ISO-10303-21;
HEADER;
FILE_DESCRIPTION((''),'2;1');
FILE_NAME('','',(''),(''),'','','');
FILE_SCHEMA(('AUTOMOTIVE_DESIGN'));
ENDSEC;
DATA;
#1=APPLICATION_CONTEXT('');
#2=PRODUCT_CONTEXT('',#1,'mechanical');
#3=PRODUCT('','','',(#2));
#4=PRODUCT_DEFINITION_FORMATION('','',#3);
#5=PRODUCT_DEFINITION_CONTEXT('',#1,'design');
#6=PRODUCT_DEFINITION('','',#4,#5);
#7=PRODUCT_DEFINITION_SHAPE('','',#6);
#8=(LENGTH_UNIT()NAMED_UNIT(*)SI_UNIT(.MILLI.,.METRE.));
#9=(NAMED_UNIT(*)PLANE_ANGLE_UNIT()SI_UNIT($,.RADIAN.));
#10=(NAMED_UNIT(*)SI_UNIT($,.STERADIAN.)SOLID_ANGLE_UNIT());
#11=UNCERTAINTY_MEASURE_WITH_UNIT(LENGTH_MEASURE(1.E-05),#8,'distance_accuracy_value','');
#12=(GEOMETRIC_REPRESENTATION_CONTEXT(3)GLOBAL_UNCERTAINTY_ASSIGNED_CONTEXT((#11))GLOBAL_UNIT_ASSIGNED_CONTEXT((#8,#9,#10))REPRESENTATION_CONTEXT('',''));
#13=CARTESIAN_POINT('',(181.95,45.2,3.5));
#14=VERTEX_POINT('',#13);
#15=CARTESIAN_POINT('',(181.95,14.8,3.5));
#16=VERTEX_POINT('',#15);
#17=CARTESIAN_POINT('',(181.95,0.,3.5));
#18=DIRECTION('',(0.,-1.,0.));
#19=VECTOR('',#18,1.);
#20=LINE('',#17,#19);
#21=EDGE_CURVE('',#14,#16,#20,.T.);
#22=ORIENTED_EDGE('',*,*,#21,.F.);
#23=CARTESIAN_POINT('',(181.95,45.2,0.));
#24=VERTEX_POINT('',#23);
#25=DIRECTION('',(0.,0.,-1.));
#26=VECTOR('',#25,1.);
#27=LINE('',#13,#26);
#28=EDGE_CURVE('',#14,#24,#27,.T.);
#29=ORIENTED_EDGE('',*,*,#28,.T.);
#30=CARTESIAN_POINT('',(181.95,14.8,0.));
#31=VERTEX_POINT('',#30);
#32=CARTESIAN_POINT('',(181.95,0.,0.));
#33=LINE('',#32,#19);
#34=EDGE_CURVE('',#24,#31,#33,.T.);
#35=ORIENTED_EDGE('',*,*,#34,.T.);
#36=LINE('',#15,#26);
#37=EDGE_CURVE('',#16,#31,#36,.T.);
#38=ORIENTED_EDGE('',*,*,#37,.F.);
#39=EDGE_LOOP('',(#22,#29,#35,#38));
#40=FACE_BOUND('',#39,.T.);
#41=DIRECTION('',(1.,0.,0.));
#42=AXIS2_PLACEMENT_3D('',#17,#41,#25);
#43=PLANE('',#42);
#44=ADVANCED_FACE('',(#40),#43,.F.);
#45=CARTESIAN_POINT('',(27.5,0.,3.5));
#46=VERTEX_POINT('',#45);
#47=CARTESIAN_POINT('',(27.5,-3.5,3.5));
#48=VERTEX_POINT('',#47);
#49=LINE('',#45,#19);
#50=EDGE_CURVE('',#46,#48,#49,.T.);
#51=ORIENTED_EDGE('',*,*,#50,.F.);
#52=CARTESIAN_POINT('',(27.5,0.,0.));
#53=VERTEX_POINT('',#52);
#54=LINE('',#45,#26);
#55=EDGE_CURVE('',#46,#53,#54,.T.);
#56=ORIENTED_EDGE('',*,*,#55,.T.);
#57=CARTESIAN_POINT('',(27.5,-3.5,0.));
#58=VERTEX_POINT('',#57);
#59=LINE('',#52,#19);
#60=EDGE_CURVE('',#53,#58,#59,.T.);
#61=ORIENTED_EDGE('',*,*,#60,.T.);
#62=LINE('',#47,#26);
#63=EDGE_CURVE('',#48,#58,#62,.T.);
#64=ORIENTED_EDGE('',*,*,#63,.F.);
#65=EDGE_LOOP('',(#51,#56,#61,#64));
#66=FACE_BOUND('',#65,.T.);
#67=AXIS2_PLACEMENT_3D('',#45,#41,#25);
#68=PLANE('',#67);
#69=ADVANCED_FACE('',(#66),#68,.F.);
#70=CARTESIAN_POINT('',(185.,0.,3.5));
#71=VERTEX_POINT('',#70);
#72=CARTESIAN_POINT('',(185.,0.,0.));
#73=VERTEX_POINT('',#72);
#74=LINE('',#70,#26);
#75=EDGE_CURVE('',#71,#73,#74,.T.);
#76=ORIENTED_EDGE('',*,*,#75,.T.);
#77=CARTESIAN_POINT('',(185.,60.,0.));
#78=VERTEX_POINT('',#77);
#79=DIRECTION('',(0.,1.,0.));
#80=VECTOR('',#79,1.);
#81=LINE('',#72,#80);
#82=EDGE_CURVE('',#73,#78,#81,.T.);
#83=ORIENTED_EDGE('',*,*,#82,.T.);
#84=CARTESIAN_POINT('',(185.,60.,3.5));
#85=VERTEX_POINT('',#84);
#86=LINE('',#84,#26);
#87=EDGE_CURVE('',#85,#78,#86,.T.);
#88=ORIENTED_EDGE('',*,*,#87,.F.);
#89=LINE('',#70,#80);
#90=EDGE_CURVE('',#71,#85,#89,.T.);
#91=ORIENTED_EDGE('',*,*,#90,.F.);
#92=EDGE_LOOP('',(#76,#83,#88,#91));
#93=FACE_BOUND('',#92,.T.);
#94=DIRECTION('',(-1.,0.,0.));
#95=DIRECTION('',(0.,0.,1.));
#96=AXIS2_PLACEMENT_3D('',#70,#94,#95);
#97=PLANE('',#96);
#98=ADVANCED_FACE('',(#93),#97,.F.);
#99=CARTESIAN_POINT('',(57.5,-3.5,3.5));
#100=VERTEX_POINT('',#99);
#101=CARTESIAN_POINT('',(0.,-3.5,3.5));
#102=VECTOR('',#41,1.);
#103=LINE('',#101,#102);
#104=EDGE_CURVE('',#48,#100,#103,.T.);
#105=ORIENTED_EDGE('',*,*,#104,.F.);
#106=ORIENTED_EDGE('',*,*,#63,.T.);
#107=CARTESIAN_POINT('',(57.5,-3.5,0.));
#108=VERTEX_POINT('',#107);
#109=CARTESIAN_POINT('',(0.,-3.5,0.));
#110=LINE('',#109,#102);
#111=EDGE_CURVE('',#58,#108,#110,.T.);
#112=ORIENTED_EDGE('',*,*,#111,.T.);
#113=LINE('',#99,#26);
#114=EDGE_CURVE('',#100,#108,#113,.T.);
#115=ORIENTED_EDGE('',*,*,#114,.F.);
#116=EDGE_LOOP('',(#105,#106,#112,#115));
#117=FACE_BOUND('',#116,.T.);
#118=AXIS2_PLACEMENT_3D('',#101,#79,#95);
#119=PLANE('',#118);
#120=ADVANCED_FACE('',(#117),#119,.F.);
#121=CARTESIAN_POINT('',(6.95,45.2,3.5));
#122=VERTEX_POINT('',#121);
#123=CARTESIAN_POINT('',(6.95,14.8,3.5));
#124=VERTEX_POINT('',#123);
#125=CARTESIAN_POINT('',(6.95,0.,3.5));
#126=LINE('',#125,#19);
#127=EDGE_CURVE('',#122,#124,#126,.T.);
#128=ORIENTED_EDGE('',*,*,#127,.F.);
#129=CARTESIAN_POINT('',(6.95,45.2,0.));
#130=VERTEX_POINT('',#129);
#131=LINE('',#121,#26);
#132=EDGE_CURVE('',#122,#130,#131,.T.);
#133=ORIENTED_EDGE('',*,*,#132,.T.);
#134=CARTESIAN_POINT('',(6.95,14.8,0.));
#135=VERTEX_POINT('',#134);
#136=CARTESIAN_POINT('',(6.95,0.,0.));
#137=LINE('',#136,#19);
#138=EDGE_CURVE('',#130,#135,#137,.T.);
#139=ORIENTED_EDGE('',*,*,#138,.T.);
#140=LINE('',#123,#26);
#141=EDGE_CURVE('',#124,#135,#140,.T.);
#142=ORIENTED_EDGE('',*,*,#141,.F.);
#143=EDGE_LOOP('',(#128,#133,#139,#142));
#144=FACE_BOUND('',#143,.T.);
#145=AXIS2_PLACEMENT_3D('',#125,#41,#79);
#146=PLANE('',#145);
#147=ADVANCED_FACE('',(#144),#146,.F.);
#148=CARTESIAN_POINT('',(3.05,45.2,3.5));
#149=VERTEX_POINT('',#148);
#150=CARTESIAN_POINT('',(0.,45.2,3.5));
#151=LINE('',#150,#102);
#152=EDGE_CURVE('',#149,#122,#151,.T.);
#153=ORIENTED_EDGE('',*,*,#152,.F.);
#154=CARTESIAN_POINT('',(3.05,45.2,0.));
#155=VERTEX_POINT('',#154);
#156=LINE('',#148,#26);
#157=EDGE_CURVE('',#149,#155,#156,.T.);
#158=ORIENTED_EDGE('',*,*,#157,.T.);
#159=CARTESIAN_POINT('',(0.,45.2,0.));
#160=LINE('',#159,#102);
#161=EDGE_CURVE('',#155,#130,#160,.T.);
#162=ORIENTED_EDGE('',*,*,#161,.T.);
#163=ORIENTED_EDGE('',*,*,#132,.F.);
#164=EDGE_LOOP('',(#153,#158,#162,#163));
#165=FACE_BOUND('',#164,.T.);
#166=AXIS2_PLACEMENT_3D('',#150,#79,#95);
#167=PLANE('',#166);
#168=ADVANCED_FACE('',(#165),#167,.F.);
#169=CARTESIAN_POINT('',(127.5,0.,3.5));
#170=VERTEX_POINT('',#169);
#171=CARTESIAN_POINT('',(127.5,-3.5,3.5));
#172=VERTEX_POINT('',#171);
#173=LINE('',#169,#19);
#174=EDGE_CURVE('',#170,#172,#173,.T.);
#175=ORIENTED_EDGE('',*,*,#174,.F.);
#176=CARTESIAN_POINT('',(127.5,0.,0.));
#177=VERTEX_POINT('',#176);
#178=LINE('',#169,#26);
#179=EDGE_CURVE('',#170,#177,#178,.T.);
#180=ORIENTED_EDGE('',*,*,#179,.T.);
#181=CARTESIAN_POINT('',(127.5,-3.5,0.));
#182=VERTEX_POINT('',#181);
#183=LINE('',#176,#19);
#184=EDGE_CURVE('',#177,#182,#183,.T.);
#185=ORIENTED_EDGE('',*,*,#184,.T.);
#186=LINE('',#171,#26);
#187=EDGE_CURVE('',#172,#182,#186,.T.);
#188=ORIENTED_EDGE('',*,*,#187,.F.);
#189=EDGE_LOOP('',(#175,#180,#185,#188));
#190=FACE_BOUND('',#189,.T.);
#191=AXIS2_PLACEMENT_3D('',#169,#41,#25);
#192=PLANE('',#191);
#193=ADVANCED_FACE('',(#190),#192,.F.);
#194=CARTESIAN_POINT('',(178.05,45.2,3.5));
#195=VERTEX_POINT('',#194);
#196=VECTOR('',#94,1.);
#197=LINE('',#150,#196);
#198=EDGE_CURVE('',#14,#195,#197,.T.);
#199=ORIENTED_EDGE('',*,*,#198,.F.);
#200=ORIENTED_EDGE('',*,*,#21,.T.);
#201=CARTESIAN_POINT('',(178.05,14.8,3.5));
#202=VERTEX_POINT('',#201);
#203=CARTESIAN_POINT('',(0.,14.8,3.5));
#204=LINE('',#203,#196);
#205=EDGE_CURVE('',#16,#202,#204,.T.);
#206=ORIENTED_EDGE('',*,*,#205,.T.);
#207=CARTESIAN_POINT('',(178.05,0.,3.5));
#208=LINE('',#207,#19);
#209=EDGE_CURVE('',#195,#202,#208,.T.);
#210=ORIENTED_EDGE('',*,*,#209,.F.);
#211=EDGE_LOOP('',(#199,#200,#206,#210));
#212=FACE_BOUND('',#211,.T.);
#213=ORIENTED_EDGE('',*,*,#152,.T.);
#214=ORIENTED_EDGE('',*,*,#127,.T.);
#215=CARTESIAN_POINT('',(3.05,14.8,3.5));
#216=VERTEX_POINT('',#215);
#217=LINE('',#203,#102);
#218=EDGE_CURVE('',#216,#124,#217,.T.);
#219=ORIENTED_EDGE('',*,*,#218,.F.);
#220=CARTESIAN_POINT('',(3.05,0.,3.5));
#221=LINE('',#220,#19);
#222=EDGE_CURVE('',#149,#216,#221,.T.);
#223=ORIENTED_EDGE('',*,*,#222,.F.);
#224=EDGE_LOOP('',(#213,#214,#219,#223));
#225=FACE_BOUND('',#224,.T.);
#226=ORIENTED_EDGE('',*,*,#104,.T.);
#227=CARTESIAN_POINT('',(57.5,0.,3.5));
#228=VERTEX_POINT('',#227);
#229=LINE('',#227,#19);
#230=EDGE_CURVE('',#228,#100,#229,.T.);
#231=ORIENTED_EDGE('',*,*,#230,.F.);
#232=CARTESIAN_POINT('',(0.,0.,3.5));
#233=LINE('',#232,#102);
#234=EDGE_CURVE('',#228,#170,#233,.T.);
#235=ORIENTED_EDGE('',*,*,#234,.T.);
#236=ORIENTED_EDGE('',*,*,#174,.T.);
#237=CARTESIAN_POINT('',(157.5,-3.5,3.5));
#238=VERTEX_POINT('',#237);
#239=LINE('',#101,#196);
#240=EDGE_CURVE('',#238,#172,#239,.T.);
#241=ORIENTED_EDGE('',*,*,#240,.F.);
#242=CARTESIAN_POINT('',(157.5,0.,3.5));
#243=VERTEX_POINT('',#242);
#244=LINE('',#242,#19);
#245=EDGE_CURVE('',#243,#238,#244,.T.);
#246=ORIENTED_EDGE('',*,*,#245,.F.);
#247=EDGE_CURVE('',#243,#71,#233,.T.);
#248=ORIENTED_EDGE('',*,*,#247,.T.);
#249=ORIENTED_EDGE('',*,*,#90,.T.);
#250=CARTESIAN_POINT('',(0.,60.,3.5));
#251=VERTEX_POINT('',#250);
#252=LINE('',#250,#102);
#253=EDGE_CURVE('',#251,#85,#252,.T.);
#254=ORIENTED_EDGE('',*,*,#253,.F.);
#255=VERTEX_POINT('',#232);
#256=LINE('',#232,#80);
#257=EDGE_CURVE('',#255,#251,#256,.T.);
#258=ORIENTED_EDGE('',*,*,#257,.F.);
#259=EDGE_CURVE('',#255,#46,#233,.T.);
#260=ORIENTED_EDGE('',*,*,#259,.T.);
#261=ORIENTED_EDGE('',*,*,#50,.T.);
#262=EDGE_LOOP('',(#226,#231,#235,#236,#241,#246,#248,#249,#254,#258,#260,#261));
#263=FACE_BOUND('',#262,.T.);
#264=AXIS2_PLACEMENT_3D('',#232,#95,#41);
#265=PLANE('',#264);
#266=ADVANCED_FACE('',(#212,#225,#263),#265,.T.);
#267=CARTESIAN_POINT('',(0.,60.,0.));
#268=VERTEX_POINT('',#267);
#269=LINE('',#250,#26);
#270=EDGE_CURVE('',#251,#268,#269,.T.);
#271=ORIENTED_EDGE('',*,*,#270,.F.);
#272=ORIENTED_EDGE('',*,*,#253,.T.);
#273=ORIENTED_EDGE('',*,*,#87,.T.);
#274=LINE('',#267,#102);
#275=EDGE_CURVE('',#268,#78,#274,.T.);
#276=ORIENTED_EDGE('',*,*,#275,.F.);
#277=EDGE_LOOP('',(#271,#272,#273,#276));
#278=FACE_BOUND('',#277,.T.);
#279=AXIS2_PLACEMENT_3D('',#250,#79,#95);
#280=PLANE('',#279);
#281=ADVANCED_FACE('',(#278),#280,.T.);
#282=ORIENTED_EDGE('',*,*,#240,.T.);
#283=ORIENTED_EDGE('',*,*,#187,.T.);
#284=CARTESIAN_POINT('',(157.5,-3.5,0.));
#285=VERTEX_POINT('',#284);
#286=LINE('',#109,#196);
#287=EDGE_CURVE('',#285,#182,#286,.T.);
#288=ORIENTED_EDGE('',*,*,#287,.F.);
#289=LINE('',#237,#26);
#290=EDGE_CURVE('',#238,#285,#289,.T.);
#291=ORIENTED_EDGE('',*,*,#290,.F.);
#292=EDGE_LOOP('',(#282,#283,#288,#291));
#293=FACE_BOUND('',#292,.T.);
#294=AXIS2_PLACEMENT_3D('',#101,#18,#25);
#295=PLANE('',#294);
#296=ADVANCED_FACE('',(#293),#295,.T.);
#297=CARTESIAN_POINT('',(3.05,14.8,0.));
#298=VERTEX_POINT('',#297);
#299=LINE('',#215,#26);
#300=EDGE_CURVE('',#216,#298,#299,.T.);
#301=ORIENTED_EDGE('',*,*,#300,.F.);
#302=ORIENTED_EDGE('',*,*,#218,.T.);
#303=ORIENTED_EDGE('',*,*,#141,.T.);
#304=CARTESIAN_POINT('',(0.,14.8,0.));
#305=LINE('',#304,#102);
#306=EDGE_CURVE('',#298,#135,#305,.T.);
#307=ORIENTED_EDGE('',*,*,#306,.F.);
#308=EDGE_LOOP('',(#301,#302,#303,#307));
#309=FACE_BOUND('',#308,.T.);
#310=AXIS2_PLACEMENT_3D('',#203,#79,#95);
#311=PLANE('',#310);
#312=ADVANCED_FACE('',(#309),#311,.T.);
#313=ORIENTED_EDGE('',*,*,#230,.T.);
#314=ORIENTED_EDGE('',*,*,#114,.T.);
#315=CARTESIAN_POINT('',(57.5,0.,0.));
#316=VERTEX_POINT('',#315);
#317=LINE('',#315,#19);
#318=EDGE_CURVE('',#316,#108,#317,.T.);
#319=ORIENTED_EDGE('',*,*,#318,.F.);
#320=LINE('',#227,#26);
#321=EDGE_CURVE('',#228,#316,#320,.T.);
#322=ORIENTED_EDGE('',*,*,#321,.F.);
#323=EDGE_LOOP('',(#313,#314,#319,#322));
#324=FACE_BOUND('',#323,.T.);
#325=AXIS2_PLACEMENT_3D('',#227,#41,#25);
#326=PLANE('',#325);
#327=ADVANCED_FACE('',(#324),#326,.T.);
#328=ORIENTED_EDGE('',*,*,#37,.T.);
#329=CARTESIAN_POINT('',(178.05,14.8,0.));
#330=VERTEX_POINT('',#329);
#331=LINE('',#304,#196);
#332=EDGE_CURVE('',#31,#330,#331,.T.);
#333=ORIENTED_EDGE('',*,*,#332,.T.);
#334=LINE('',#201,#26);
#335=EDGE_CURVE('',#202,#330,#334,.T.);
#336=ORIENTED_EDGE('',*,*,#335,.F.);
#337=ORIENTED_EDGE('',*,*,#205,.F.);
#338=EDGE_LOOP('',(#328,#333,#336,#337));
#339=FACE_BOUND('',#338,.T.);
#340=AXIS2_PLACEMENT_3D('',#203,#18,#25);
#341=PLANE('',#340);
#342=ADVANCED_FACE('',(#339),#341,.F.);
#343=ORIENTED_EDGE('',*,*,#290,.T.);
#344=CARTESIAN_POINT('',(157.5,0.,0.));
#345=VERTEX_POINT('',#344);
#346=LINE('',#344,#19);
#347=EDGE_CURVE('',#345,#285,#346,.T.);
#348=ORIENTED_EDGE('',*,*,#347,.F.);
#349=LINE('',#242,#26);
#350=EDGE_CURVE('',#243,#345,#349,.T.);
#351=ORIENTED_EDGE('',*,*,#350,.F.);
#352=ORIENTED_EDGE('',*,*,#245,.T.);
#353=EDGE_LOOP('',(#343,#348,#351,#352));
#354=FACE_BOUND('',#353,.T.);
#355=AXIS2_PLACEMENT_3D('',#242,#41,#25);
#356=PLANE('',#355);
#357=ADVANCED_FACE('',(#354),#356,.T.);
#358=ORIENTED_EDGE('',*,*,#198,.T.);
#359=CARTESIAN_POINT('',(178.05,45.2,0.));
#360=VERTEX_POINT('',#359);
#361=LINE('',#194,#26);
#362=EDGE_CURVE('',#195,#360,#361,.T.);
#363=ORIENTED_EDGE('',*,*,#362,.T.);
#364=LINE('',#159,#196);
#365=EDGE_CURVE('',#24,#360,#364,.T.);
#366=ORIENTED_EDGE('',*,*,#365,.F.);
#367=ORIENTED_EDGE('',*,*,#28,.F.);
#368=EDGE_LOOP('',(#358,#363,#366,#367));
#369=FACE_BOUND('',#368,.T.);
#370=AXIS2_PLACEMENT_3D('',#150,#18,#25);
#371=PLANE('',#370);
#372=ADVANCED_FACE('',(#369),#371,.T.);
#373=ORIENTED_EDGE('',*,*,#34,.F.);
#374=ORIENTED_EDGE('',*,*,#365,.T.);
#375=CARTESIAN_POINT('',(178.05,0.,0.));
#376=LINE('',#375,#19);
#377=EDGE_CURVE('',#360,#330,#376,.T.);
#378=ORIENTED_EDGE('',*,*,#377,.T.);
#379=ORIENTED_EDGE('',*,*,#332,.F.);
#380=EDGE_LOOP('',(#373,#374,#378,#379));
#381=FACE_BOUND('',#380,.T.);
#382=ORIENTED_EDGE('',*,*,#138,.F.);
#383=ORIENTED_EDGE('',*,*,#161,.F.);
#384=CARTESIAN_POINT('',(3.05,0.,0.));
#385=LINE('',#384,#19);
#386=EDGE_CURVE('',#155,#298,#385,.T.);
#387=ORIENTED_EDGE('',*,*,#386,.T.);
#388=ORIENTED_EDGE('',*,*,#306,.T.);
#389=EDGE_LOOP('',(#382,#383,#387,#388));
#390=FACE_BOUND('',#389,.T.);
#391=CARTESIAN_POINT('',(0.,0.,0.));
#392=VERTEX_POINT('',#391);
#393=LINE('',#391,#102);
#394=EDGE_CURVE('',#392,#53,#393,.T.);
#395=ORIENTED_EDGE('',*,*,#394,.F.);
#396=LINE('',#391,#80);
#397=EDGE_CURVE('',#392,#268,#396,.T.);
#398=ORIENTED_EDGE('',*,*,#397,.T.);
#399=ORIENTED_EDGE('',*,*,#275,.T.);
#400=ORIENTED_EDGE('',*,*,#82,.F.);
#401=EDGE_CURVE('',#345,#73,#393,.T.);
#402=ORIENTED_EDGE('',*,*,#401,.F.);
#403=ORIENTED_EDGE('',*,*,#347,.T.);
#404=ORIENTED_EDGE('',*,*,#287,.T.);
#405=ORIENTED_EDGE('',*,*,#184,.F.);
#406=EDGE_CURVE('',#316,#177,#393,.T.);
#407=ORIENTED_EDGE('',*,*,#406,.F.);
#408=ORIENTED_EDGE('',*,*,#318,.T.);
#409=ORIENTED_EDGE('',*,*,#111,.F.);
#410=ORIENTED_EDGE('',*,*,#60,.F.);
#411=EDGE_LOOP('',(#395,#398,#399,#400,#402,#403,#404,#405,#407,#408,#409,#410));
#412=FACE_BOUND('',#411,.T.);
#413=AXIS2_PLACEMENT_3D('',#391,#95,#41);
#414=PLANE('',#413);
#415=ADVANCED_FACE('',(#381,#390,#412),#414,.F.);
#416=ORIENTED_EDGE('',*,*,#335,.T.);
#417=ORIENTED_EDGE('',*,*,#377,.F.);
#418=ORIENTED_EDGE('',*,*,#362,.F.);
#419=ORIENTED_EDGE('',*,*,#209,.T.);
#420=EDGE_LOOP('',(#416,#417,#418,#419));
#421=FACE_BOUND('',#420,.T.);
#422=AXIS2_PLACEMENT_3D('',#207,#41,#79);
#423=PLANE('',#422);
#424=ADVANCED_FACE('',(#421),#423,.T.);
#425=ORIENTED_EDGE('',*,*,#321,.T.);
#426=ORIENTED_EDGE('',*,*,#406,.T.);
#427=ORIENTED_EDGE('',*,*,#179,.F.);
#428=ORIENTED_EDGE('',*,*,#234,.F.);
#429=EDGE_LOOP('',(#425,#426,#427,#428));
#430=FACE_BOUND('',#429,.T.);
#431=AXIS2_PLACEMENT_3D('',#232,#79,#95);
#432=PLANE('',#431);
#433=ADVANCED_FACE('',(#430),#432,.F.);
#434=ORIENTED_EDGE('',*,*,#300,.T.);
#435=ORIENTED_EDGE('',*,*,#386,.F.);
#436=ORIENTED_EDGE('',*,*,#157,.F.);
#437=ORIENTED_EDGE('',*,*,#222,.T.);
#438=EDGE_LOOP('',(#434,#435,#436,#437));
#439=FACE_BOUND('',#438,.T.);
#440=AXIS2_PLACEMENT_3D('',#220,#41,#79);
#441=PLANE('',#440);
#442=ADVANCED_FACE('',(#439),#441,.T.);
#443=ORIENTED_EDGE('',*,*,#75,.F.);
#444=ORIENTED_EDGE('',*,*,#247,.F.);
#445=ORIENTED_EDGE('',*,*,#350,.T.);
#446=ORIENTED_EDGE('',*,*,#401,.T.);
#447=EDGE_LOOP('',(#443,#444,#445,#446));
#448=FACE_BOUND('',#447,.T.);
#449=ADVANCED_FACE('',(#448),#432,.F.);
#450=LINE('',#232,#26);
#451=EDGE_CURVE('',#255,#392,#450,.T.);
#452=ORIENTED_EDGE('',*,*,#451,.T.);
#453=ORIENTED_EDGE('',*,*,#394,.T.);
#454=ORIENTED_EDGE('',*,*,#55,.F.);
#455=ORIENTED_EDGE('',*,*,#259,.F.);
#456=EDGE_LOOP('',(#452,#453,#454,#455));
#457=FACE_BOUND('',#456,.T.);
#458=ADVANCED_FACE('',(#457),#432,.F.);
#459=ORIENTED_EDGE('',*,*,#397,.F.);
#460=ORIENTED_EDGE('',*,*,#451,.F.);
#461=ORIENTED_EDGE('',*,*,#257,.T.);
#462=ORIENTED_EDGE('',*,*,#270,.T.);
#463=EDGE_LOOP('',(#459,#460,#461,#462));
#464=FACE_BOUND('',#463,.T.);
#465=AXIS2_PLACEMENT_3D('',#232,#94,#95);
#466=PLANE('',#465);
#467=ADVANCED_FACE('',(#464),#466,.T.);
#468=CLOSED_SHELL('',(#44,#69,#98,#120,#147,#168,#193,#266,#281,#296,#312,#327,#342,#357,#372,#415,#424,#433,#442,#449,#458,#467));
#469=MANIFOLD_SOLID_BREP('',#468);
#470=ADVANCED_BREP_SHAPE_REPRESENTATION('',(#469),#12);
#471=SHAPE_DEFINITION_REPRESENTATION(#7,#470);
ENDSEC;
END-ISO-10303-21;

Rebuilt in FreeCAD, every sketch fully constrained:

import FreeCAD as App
import Part
import Sketcher

doc = App.newDocument("Part")
body = doc.addObject("PartDesign::Body", "Body")

# Sketch on XY plane
sketch1 = body.newObject("Sketcher::SketchObject", "Sketch")
sketch1.AttachmentSupport = (doc.getObject("XY_Plane"), [""])
sketch1.MapMode = "FlatFace"
sketch1.addGeometry([
    Part.LineSegment(App.Vector(0, 60, 0), App.Vector(0, 0, 0)),  # 0
    Part.LineSegment(App.Vector(0, 0, 0), App.Vector(27.5, 0, 0)),  # 1
    Part.LineSegment(App.Vector(27.5, 0, 0), App.Vector(27.5, -3.5, 0)),  # 2
    Part.LineSegment(App.Vector(27.5, -3.5, 0), App.Vector(57.5, -3.5, 0)),  # 3
    Part.LineSegment(App.Vector(57.5, -3.5, 0), App.Vector(57.5, 0, 0)),  # 4
    Part.LineSegment(App.Vector(57.5, 0, 0), App.Vector(127.5, 0, 0)),  # 5
    Part.LineSegment(App.Vector(127.5, 0, 0), App.Vector(127.5, -3.5, 0)),  # 6
    Part.LineSegment(App.Vector(127.5, -3.5, 0), App.Vector(157.5, -3.5, 0)),  # 7
    Part.LineSegment(App.Vector(157.5, -3.5, 0), App.Vector(157.5, 0, 0)),  # 8
    Part.LineSegment(App.Vector(157.5, 0, 0), App.Vector(185, 0, 0)),  # 9
    Part.LineSegment(App.Vector(185, 0, 0), App.Vector(185, 60, 0)),  # 10
    Part.LineSegment(App.Vector(185, 60, 0), App.Vector(0, 60, 0)),  # 11
    Part.LineSegment(App.Vector(7, 14.8, 0), App.Vector(3, 14.8, 0)),  # 12
    Part.LineSegment(App.Vector(3, 14.8, 0), App.Vector(3, 45.2, 0)),  # 13
    Part.LineSegment(App.Vector(3, 45.2, 0), App.Vector(7, 45.2, 0)),  # 14
    Part.LineSegment(App.Vector(7, 45.2, 0), App.Vector(7, 14.8, 0)),  # 15
    Part.LineSegment(App.Vector(181.9, 14.8, 0), App.Vector(178.1, 14.8, 0)),  # 16
    Part.LineSegment(App.Vector(178.1, 14.8, 0), App.Vector(178.1, 45.2, 0)),  # 17
    Part.LineSegment(App.Vector(178.1, 45.2, 0), App.Vector(181.9, 45.2, 0)),  # 18
    Part.LineSegment(App.Vector(181.9, 45.2, 0), App.Vector(181.9, 14.8, 0)),  # 19
], False)
sketch1.addConstraint([
    Sketcher.Constraint("Coincident", 0, 2, 1, 1),
    Sketcher.Constraint("Coincident", 1, 2, 2, 1),
    Sketcher.Constraint("Coincident", 2, 2, 3, 1),
    Sketcher.Constraint("Coincident", 3, 2, 4, 1),
    Sketcher.Constraint("Coincident", 4, 2, 5, 1),
    Sketcher.Constraint("Coincident", 5, 2, 6, 1),
    Sketcher.Constraint("Coincident", 6, 2, 7, 1),
    Sketcher.Constraint("Coincident", 7, 2, 8, 1),
    Sketcher.Constraint("Coincident", 8, 2, 9, 1),
    Sketcher.Constraint("Coincident", 9, 2, 10, 1),
    Sketcher.Constraint("Coincident", 10, 2, 11, 1),
    Sketcher.Constraint("Coincident", 11, 2, 0, 1),
    Sketcher.Constraint("Coincident", 12, 2, 13, 1),
    Sketcher.Constraint("Coincident", 13, 2, 14, 1),
    Sketcher.Constraint("Coincident", 14, 2, 15, 1),
    Sketcher.Constraint("Coincident", 15, 2, 12, 1),
    Sketcher.Constraint("Coincident", 16, 2, 17, 1),
    Sketcher.Constraint("Coincident", 17, 2, 18, 1),
    Sketcher.Constraint("Coincident", 18, 2, 19, 1),
    Sketcher.Constraint("Coincident", 19, 2, 16, 1),
    Sketcher.Constraint("Vertical", 0),
    Sketcher.Constraint("Horizontal", 1),
    Sketcher.Constraint("Vertical", 2),
    Sketcher.Constraint("Horizontal", 3),
    Sketcher.Constraint("Vertical", 4),
    Sketcher.Constraint("Horizontal", 5),
    Sketcher.Constraint("Vertical", 6),
    Sketcher.Constraint("Horizontal", 7),
    Sketcher.Constraint("Vertical", 8),
    Sketcher.Constraint("Horizontal", 9),
    Sketcher.Constraint("Vertical", 10),
    Sketcher.Constraint("Horizontal", 11),
    Sketcher.Constraint("Horizontal", 12),
    Sketcher.Constraint("Vertical", 13),
    Sketcher.Constraint("Horizontal", 14),
    Sketcher.Constraint("Vertical", 15),
    Sketcher.Constraint("Horizontal", 16),
    Sketcher.Constraint("Vertical", 17),
    Sketcher.Constraint("Horizontal", 18),
    Sketcher.Constraint("Vertical", 19),
    Sketcher.Constraint("Coincident", 0, 2, -1, 1),
    Sketcher.Constraint("PointOnObject", 4, 2, -1),
    Sketcher.Constraint("PointOnObject", 8, 2, -1),
    Sketcher.Constraint("Horizontal", 3, 2, 6, 2),
    Sketcher.Constraint("Horizontal", 15, 2, 16, 2),
    Sketcher.Constraint("Horizontal", 14, 2, 17, 2),
    Sketcher.Constraint("Equal", 3, 7),
    Sketcher.Constraint("Equal", 1, 9),
    Sketcher.Constraint("Equal", 14, 16),
    Sketcher.Constraint("DistanceX", 3, 1, 3, 2, 30.0),
    Sketcher.Constraint("DistanceX", 5, 1, 5, 2, 70.0),
    Sketcher.Constraint("DistanceX", 11, 2, 11, 1, 185.0),
    Sketcher.Constraint("DistanceY", 0, 2, 0, 1, 60.0),
    Sketcher.Constraint("DistanceX", 12, 2, 12, 1, 3.9),
    Sketcher.Constraint("DistanceY", 2, 2, 2, 1, 3.5),
    Sketcher.Constraint("DistanceY", 13, 1, 13, 2, 30.4),
    Sketcher.Constraint("DistanceY", -1, 1, 12, 2, 14.8),
    Sketcher.Constraint("DistanceX", -1, 1, 12, 2, 3.05),
    Sketcher.Constraint("DistanceX", -1, 1, 16, 2, 178.05),
])
pad1 = body.newObject("PartDesign::Pad", "Pad")
pad1.Profile = sketch1
pad1.Length = 3.5

doc.recompute()
